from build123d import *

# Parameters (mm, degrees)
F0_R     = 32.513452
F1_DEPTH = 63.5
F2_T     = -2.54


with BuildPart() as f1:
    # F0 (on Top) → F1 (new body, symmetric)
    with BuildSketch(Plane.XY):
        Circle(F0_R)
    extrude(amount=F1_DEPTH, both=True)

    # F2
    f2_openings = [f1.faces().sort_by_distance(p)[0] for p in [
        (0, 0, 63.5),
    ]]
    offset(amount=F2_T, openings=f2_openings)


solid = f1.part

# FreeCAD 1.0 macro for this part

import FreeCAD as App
import Part
import Sketcher


def faces_at(feature, points):
    """Names of the faces that lie closest to the given points."""
    faces = feature.Shape.Faces
    near = lambda p: min(range(len(faces)), key=lambda i: faces[i].distToShape(Part.Vertex(*p))[0])
    return sorted({f"Face{near(p) + 1}" for p in points})

doc = App.newDocument("Part")
params = doc.addObject("Spreadsheet::Sheet", "Params")
for row, (alias, value) in enumerate([
    ("pad1_length", "5 in"),
    ("thickness_wall", "0.1 in"),
], start=1):
    params.set(f"A{row}", alias)
    params.set(f"B{row}", "=" + value)
    params.setAlias(f"B{row}", alias)

body = doc.addObject("PartDesign::Body", "Body")

sketch1 = body.newObject("Sketcher::SketchObject", "Sketch")
sketch1.AttachmentSupport = (doc.getObject("XY_Plane"), [""])
sketch1.MapMode = "FlatFace"
sketch1.addGeometry(Part.Circle(App.Vector(0, 0, 0), App.Vector(0, 0, 1), 33), False)
sketch1.addConstraint([
    Sketcher.Constraint("Coincident", 0, 3, -1, 1),
    Sketcher.Constraint("Diameter", 0, 65.026904),
])
pad1 = body.newObject("PartDesign::Pad", "Pad")
pad1.Profile = sketch1
pad1.setExpression("Length", "Params.pad1_length")
pad1.Midplane = True
doc.recompute()

thickness = body.newObject("PartDesign::Thickness", "Thickness")
thickness.Base = (pad1, faces_at(pad1, [(0, 0, 63.5)]))
thickness.setExpression("Value", "Params.thickness_wall")
thickness.Reversed = True
thickness.Join = "Arc"

doc.recompute()
